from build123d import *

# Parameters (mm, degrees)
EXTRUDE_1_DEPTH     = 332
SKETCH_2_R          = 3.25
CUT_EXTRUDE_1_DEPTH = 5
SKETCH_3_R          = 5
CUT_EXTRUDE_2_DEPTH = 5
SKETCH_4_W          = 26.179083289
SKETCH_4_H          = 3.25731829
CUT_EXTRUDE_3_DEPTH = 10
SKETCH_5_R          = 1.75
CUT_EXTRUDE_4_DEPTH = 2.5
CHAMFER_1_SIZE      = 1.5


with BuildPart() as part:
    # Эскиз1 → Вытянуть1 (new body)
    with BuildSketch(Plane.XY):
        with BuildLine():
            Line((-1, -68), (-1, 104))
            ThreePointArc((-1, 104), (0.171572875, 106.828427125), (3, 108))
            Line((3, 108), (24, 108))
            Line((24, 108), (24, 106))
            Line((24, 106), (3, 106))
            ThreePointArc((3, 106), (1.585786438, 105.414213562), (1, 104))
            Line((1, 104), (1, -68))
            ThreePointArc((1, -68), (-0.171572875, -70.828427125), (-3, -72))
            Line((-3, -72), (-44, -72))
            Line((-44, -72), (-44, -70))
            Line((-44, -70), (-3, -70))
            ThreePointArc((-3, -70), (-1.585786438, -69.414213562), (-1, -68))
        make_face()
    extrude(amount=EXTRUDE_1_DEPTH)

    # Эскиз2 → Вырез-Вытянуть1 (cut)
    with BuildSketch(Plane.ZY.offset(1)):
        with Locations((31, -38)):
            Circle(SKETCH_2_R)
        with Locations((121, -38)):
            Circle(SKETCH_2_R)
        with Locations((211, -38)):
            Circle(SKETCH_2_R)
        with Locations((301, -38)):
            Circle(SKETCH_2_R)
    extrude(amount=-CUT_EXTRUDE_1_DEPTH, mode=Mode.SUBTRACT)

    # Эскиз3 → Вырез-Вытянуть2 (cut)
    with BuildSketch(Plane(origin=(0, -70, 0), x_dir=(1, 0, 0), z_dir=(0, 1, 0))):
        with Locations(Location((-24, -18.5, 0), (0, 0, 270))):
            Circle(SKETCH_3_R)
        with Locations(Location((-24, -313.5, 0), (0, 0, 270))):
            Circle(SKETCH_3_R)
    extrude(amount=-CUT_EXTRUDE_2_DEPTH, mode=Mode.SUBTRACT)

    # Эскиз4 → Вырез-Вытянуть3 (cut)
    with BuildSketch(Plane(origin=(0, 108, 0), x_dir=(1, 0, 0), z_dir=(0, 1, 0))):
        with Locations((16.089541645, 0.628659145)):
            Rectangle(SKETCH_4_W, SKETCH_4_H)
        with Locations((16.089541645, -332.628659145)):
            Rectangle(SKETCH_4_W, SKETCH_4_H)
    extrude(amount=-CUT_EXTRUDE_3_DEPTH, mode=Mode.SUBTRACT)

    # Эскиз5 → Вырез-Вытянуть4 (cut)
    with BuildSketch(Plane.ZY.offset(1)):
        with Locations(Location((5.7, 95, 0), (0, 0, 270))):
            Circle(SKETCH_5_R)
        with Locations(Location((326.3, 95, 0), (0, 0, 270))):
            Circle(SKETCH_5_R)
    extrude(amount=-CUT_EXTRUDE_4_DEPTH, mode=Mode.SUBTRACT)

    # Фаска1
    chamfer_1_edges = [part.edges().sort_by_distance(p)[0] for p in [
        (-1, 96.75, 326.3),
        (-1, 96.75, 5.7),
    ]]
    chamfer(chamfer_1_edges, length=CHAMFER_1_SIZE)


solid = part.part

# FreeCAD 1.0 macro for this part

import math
import FreeCAD as App
import Part
import Sketcher
Q = App.Units.Quantity


def edges_at(feature, points):
    """Names of the edges that pass closest to the given points."""
    edges = feature.Shape.Edges
    near = lambda p: min(range(len(edges)), key=lambda i: edges[i].distToShape(Part.Vertex(*p))[0])
    return sorted({f"Edge{near(p) + 1}" for p in points})

doc = App.newDocument("Part")
body = doc.addObject("PartDesign::Body", "Body")

# Sketch on XY plane
sketch1 = body.newObject("Sketcher::SketchObject", "Sketch")
sketch1.AttachmentSupport = (doc.getObject("XY_Plane"), [""])
sketch1.MapMode = "FlatFace"
sketch1.addGeometry([
    Part.LineSegment(App.Vector(-1, 104, 0), App.Vector(-1, -68, 0)),  # 0
    Part.ArcOfCircle(Part.Circle(App.Vector(-3, -68, 0), App.Vector(0, 0, 1), 2), math.radians(-90), math.radians(0)),  # 1
    Part.LineSegment(App.Vector(-3, -70, 0), App.Vector(-44, -70, 0)),  # 2
    Part.LineSegment(App.Vector(-44, -70, 0), App.Vector(-44, -72, 0)),  # 3
    Part.LineSegment(App.Vector(-44, -72, 0), App.Vector(-3, -72, 0)),  # 4
    Part.ArcOfCircle(Part.Circle(App.Vector(-3, -68, 0), App.Vector(0, 0, 1), 4), math.radians(-90), math.radians(0)),  # 5
    Part.LineSegment(App.Vector(1, -68, 0), App.Vector(1, 104, 0)),  # 6
    Part.ArcOfCircle(Part.Circle(App.Vector(3, 104, 0), App.Vector(0, 0, 1), 2), math.radians(90), math.radians(180)),  # 7
    Part.LineSegment(App.Vector(3, 106, 0), App.Vector(24, 106, 0)),  # 8
    Part.LineSegment(App.Vector(24, 106, 0), App.Vector(24, 108, 0)),  # 9
    Part.LineSegment(App.Vector(24, 108, 0), App.Vector(3, 108, 0)),  # 10
    Part.ArcOfCircle(Part.Circle(App.Vector(3, 104, 0), App.Vector(0, 0, 1), 4), math.radians(90), math.radians(180)),  # 11
], False)
sketch1.addConstraint([
    Sketcher.Constraint("Tangent", 0, 2, 1, 2),
    Sketcher.Constraint("Tangent", 1, 1, 2, 1),
    Sketcher.Constraint("Coincident", 2, 2, 3, 1),
    Sketcher.Constraint("Coincident", 3, 2, 4, 1),
    Sketcher.Constraint("Tangent", 4, 2, 5, 1),
    Sketcher.Constraint("Tangent", 5, 2, 6, 1),
    Sketcher.Constraint("Tangent", 6, 2, 7, 2),
    Sketcher.Constraint("Tangent", 7, 1, 8, 1),
    Sketcher.Constraint("Coincident", 8, 2, 9, 1),
    Sketcher.Constraint("Coincident", 9, 2, 10, 1),
    Sketcher.Constraint("Tangent", 10, 2, 11, 1),
    Sketcher.Constraint("Tangent", 11, 2, 0, 1),
    Sketcher.Constraint("Vertical", 0),
    Sketcher.Constraint("Horizontal", 2),
    Sketcher.Constraint("Vertical", 3),
    Sketcher.Constraint("Horizontal", 4),
    Sketcher.Constraint("Vertical", 6),
    Sketcher.Constraint("Horizontal", 8),
    Sketcher.Constraint("Vertical", 9),
    Sketcher.Constraint("Horizontal", 10),
    Sketcher.Constraint("Coincident", 5, 3, 1, 3),
    Sketcher.Constraint("Coincident", 11, 3, 7, 3),
    Sketcher.Constraint("Equal", 1, 7),
    Sketcher.Constraint("Radius", 1, Q("2 mm")),
    Sketcher.Constraint("Radius", 5, Q("4 mm")),
    Sketcher.Constraint("DistanceX", 2, 2, 2, 1, Q("41 mm")),
    Sketcher.Constraint("DistanceX", 8, 1, 8, 2, Q("21 mm")),
    Sketcher.Constraint("DistanceY", 0, 2, 0, 1, Q("172 mm")),
    Sketcher.Constraint("DistanceX", 1, 3, -1, 1, Q("3 mm")),
    Sketcher.Constraint("DistanceY", 1, 3, -1, 1, Q("68 mm")),
])
pad1 = body.newObject("PartDesign::Pad", "Pad")
pad1.Profile = sketch1
pad1.Length = 332

# Sketch on YZ plane
sketch2 = body.newObject("Sketcher::SketchObject", "Sketch001")
sketch2.AttachmentSupport = (doc.getObject("YZ_Plane"), [""])
sketch2.MapMode = "FlatFace"
sketch2.AttachmentOffset = App.Placement(App.Vector(0, 0, -1), App.Rotation())
sketch2.addGeometry([
    Part.Circle(App.Vector(-38, 31, 0), App.Vector(0, 0, 1), 3.2),
    Part.Circle(App.Vector(-38, 121, 0), App.Vector(0, 0, 1), 3.2),
    Part.Circle(App.Vector(-38, 211, 0), App.Vector(0, 0, 1), 3.2),
    Part.Circle(App.Vector(-38, 301, 0), App.Vector(0, 0, 1), 3.2),
], False)
sketch2.addConstraint([
    Sketcher.Constraint("Equal", 0, 1),
    Sketcher.Constraint("Equal", 1, 2),
    Sketcher.Constraint("Equal", 2, 3),
    Sketcher.Constraint("Vertical", 0, 3, 1, 3),
    Sketcher.Constraint("Vertical", 1, 3, 2, 3),
    Sketcher.Constraint("Vertical", 2, 3, 3, 3),
    Sketcher.Constraint("Diameter", 0, Q("6.5 mm")),
    Sketcher.Constraint("DistanceX", 0, 3, -1, 1, Q("38 mm")),
    Sketcher.Constraint("DistanceY", -1, 1, 0, 3, Q("31 mm")),
    Sketcher.Constraint("DistanceY", -1, 1, 1, 3, Q("121 mm")),
    Sketcher.Constraint("DistanceY", -1, 1, 2, 3, Q("211 mm")),
    Sketcher.Constraint("DistanceY", -1, 1, 3, 3, Q("301 mm")),
])
pocket1 = body.newObject("PartDesign::Pocket", "Pocket")
pocket1.Profile = sketch2
pocket1.Length = 5
pocket1.Reversed = True

# Sketch on XZ plane
sketch3 = body.newObject("Sketcher::SketchObject", "Sketch002")
sketch3.AttachmentSupport = (doc.getObject("XZ_Plane"), [""])
sketch3.MapMode = "FlatFace"
sketch3.AttachmentOffset = App.Placement(App.Vector(0, 0, 70), App.Rotation())
sketch3.addGeometry([
    Part.Circle(App.Vector(-24, 18, 0), App.Vector(0, 0, 1), 5),
    Part.Circle(App.Vector(-24, 314, 0), App.Vector(0, 0, 1), 5),
], False)
sketch3.addConstraint([
    Sketcher.Constraint("Equal", 0, 1),
    Sketcher.Constraint("Vertical", 0, 3, 1, 3),
    Sketcher.Constraint("Diameter", 0, Q("10 mm")),
    Sketcher.Constraint("DistanceX", 0, 3, -1, 1, Q("24 mm")),
    Sketcher.Constraint("DistanceY", 0, 3, 1, 3, Q("295 mm")),
    Sketcher.Constraint("DistanceY", -1, 1, 0, 3, Q("18.5 mm")),
])
pocket2 = body.newObject("PartDesign::Pocket", "Pocket001")
pocket2.Profile = sketch3
pocket2.Length = 5
pocket2.Reversed = True

# Sketch on XZ plane
sketch4 = body.newObject("Sketcher::SketchObject", "Sketch003")
sketch4.AttachmentSupport = (doc.getObject("XZ_Plane"), [""])
sketch4.MapMode = "FlatFace"
sketch4.AttachmentOffset = App.Placement(App.Vector(0, 0, -108), App.Rotation())
sketch4.addGeometry([
    Part.LineSegment(App.Vector(3, -2.3, 0), App.Vector(3, 1, 0)),  # 0
    Part.LineSegment(App.Vector(3, 1, 0), App.Vector(29.2, 1, 0)),  # 1
    Part.LineSegment(App.Vector(29.2, 1, 0), App.Vector(29.2, -2.3, 0)),  # 2
    Part.LineSegment(App.Vector(29.2, -2.3, 0), App.Vector(3, -2.3, 0)),  # 3
    Part.LineSegment(App.Vector(3, 331, 0), App.Vector(3, 334.3, 0)),  # 4
    Part.LineSegment(App.Vector(3, 334.3, 0), App.Vector(29.2, 334.3, 0)),  # 5
    Part.LineSegment(App.Vector(29.2, 334.3, 0), App.Vector(29.2, 331, 0)),  # 6
    Part.LineSegment(App.Vector(29.2, 331, 0), App.Vector(3, 331, 0)),  # 7
], False)
sketch4.addConstraint([
    Sketcher.Constraint("Coincident", 0, 2, 1, 1),
    Sketcher.Constraint("Coincident", 1, 2, 2, 1),
    Sketcher.Constraint("Coincident", 2, 2, 3, 1),
    Sketcher.Constraint("Coincident", 3, 2, 0, 1),
    Sketcher.Constraint("Coincident", 4, 2, 5, 1),
    Sketcher.Constraint("Coincident", 5, 2, 6, 1),
    Sketcher.Constraint("Coincident", 6, 2, 7, 1),
    Sketcher.Constraint("Coincident", 7, 2, 4, 1),
    Sketcher.Constraint("Vertical", 0),
    Sketcher.Constraint("Horizontal", 1),
    Sketcher.Constraint("Vertical", 2),
    Sketcher.Constraint("Horizontal", 3),
    Sketcher.Constraint("Vertical", 4),
    Sketcher.Constraint("Horizontal", 5),
    Sketcher.Constraint("Vertical", 6),
    Sketcher.Constraint("Horizontal", 7),
    Sketcher.Constraint("Vertical", 3, 2, 4, 2),
    Sketcher.Constraint("Vertical", 2, 2, 5, 2),
    Sketcher.Constraint("Equal", 2, 4),
    Sketcher.Constraint("DistanceX", -1, 1, 0, 2, Q("3 mm")),
    Sketcher.Constraint("DistanceY", -1, 1, 0, 2, Q("1 mm")),
    Sketcher.Constraint("DistanceY", -1, 1, 6, 2, Q("331 mm")),
    Sketcher.Constraint("DistanceY", 0, 1, 0, 2, Q("3.257318 mm")),
    Sketcher.Constraint("DistanceX", 1, 1, 1, 2, Q("26.179083 mm")),
])
pocket3 = body.newObject("PartDesign::Pocket", "Pocket002")
pocket3.Profile = sketch4
pocket3.Length = 10
pocket3.Reversed = True

# Sketch on YZ plane
sketch5 = body.newObject("Sketcher::SketchObject", "Sketch004")
sketch5.AttachmentSupport = (doc.getObject("YZ_Plane"), [""])
sketch5.MapMode = "FlatFace"
sketch5.AttachmentOffset = App.Placement(App.Vector(0, 0, -1), App.Rotation())
sketch5.addGeometry([
    Part.Circle(App.Vector(95, 5.7, 0), App.Vector(0, 0, 1), 1.8),
    Part.Circle(App.Vector(95, 326.3, 0), App.Vector(0, 0, 1), 1.8),
], False)
sketch5.addConstraint([
    Sketcher.Constraint("Equal", 0, 1),
    Sketcher.Constraint("Vertical", 0, 3, 1, 3),
    Sketcher.Constraint("Diameter", 0, Q("3.5 mm")),
    Sketcher.Constraint("DistanceX", -1, 1, 0, 3, Q("95 mm")),
    Sketcher.Constraint("DistanceY", -1, 1, 0, 3, Q("5.7 mm")),
    Sketcher.Constraint("DistanceY", -1, 1, 1, 3, Q("326.3 mm")),
])
pocket4 = body.newObject("PartDesign::Pocket", "Pocket003")
pocket4.Profile = sketch5
pocket4.Length = 2.5
pocket4.Reversed = True
doc.recompute()

chamfer = body.newObject("PartDesign::Chamfer", "Chamfer")
chamfer.Base = (pocket4, edges_at(pocket4, [(-1, 96.75, 326.3), (-1, 96.75, 5.7)]))
chamfer.Size = 1.5

doc.recompute()
